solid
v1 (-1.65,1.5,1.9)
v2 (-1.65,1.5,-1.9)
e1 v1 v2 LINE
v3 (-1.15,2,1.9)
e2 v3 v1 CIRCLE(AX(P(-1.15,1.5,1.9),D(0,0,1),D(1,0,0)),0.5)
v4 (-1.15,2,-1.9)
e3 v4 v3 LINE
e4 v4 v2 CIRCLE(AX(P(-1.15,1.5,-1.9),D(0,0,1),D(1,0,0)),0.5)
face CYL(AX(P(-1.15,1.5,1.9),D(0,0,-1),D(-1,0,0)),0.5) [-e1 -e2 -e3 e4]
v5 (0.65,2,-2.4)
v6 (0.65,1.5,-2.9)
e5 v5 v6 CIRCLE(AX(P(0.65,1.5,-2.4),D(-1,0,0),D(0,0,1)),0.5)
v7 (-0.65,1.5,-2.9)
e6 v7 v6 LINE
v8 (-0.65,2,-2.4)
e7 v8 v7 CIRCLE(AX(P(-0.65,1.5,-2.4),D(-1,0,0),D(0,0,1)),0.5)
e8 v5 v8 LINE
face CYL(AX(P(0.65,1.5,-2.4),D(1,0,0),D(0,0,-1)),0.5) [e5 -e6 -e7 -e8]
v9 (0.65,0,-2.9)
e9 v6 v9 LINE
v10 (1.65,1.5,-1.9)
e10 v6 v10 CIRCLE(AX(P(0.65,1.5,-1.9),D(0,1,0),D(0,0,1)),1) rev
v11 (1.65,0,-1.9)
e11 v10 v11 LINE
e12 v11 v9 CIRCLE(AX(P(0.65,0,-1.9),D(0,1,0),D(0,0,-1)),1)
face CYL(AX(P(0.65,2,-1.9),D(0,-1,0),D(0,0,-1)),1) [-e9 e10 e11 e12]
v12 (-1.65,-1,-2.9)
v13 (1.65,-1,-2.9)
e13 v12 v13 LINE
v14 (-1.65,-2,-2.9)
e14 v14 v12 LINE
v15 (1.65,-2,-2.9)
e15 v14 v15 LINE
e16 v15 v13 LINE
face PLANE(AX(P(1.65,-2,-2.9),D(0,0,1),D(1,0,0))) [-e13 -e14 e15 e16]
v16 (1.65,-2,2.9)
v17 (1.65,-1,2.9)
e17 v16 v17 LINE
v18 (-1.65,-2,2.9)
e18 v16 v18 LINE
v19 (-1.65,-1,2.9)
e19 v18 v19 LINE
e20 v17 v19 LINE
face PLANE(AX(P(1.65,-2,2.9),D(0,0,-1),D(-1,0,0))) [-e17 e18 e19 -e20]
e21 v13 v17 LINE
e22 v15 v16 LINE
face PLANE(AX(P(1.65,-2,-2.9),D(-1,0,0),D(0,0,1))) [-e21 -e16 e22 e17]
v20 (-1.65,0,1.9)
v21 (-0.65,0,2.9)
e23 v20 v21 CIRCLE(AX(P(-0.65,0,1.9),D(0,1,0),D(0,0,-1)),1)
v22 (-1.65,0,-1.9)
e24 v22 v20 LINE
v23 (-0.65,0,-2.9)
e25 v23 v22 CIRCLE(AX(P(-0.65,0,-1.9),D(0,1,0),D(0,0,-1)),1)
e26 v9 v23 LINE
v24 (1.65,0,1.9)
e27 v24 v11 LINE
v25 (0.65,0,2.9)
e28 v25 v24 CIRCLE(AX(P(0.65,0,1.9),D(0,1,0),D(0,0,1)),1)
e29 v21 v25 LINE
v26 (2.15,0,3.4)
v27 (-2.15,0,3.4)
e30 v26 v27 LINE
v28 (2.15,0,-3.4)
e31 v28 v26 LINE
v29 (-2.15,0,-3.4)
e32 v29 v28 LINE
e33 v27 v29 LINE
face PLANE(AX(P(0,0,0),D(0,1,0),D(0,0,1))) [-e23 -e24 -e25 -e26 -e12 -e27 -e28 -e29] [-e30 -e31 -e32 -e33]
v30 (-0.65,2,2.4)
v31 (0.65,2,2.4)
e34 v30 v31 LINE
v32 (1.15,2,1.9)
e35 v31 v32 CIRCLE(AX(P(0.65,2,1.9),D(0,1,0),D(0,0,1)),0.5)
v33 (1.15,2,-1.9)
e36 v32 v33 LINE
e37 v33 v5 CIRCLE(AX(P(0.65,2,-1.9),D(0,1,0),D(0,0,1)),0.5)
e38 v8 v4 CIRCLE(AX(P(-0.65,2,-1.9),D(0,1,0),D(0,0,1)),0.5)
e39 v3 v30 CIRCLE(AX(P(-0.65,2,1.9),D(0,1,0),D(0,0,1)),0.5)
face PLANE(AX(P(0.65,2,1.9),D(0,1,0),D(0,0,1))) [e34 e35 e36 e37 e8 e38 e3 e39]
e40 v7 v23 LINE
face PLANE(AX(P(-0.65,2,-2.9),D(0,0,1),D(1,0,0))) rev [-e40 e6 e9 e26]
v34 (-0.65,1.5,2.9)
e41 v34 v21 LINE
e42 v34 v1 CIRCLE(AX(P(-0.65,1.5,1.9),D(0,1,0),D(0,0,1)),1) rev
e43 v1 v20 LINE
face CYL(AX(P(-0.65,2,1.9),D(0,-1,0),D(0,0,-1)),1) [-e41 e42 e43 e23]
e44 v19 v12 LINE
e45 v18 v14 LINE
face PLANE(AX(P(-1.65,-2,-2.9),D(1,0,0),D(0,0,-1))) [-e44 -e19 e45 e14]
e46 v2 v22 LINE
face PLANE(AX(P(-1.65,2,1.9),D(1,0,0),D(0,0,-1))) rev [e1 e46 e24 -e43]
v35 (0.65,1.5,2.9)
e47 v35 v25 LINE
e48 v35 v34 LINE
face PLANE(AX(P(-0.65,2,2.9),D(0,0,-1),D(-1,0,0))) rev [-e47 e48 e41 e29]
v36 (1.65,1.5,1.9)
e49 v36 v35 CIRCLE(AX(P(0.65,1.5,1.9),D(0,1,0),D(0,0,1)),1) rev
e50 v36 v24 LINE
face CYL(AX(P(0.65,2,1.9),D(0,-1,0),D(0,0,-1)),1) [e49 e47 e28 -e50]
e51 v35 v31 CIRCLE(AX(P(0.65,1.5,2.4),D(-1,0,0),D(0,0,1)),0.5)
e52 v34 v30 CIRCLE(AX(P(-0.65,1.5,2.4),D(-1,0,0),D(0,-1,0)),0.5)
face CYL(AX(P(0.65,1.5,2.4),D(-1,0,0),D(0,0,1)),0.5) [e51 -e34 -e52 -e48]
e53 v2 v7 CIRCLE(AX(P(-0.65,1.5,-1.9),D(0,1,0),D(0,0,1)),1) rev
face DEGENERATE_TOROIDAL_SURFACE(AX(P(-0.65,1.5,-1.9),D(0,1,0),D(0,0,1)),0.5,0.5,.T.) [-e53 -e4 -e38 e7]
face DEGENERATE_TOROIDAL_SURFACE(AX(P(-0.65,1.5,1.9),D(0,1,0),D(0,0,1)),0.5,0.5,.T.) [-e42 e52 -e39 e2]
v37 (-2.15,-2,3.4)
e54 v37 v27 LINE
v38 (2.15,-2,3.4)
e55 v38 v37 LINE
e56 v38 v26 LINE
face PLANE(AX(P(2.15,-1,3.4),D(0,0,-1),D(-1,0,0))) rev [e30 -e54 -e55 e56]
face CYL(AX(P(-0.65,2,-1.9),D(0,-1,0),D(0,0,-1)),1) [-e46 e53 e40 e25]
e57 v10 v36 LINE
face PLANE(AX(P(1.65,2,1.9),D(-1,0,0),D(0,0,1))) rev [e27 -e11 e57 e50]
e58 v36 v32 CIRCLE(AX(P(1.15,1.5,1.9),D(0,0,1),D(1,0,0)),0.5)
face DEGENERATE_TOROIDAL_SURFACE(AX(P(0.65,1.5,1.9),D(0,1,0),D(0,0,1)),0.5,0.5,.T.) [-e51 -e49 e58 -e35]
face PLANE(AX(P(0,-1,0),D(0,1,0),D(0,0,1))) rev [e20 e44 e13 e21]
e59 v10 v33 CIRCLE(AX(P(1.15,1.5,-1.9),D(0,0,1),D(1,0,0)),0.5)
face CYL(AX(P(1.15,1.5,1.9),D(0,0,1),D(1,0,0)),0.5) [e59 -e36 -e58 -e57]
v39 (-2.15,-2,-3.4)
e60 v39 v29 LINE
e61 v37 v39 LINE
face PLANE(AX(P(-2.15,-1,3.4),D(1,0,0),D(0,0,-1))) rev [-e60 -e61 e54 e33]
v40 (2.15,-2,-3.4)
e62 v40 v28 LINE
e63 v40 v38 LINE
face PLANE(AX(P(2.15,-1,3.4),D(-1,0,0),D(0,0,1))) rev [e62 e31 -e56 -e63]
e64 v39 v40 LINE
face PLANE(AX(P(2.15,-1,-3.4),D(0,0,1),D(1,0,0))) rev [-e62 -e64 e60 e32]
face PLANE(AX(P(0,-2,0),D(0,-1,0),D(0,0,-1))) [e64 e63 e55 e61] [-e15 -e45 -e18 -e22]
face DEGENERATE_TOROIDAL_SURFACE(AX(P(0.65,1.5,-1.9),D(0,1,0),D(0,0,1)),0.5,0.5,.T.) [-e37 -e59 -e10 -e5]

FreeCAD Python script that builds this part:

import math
import FreeCAD as App
import Part
import Sketcher


def edges_at(feature, points):
    """Names of the edges that pass closest to the given points."""
    edges = feature.Shape.Edges
    near = lambda p: min(range(len(edges)), key=lambda i: edges[i].distToShape(Part.Vertex(*p))[0])
    return sorted({f"Edge{near(p) + 1}" for p in points})


def add_polygon(sketch, points):
    """Adds a closed chain of lines whose ends are joined by coincident constraints."""
    first, n = sketch.GeometryCount, len(points)
    for a, b in zip(points, points[1:] + points[:1]):
        sketch.addGeometry(Part.LineSegment(App.Vector(*a, 0), App.Vector(*b, 0)), False)
    for i in range(n):
        sketch.addConstraint(Sketcher.Constraint("Coincident", first + i, 2, first + (i + 1) % n, 1))

doc = App.newDocument("Part")
params = doc.addObject("Spreadsheet::Sheet", "Params")
for row, (alias, value) in enumerate([
    ("sketch1_radius", "1 mm"),
    ("sketch1_width", "1.3 mm"),
    ("sketch1_height", "3.8 mm"),
    ("pad1_length", "2 mm"),
    ("sketch2_width", "4.3 mm"),
    ("sketch2_height", "6.8 mm"),
    ("pad2_length", "1 mm"),
    ("sketch3_width", "4.3 mm"),
    ("sketch3_width2", "3.3 mm"),
    ("sketch3_height", "6.8 mm"),
    ("sketch3_height2", "5.8 mm"),
    ("pad3_length", "1 mm"),
    ("fillet_radius", "0.5 mm"),
], start=1):
    params.set(f"A{row}", alias)
    params.set(f"B{row}", "=" + value)
    params.setAlias(f"B{row}", alias)

body = doc.addObject("PartDesign::Body", "Body")

sketch1 = doc.addObject("Sketcher::SketchObject", "Sketch")
body.addObject(sketch1)
sketch1.AttachmentSupport = (doc.XZ_Plane, [""])
sketch1.MapMode = "FlatFace"
sketch1.addGeometry(Part.LineSegment(App.Vector(-0.65, 2.9, 0), App.Vector(0.65, 2.9, 0)), False)
sketch1.addGeometry(Part.ArcOfCircle(Part.Circle(App.Vector(0.65, 1.9, 0), App.Vector(0, 0, 1), 1), math.radians(0), math.radians(90)), False)
sketch1.addGeometry(Part.LineSegment(App.Vector(1.65, 1.9, 0), App.Vector(1.65, -1.9, 0)), False)
sketch1.addGeometry(Part.ArcOfCircle(Part.Circle(App.Vector(0.65, -1.9, 0), App.Vector(0, 0, 1), 1), math.radians(-90), math.radians(0)), False)
sketch1.addGeometry(Part.LineSegment(App.Vector(0.65, -2.9, 0), App.Vector(-0.65, -2.9, 0)), False)
sketch1.addGeometry(Part.ArcOfCircle(Part.Circle(App.Vector(-0.65, -1.9, 0), App.Vector(0, 0, 1), 1), math.radians(-180), math.radians(-90)), False)
sketch1.addGeometry(Part.LineSegment(App.Vector(-1.65, -1.9, 0), App.Vector(-1.65, 1.9, 0)), False)
sketch1.addGeometry(Part.ArcOfCircle(Part.Circle(App.Vector(-0.65, 1.9, 0), App.Vector(0, 0, 1), 1), math.radians(90), math.radians(180)), False)
sketch1.addConstraint(Sketcher.Constraint("Tangent", 0, 2, 1, 2))
sketch1.addConstraint(Sketcher.Constraint("Tangent", 1, 1, 2, 1))
sketch1.addConstraint(Sketcher.Constraint("Tangent", 2, 2, 3, 2))
sketch1.addConstraint(Sketcher.Constraint("Tangent", 3, 1, 4, 1))
sketch1.addConstraint(Sketcher.Constraint("Tangent", 4, 2, 5, 2))
sketch1.addConstraint(Sketcher.Constraint("Tangent", 5, 1, 6, 1))
sketch1.addConstraint(Sketcher.Constraint("Tangent", 6, 2, 7, 2))
sketch1.addConstraint(Sketcher.Constraint("Tangent", 7, 1, 0, 1))
sketch1.addConstraint(Sketcher.Constraint("Horizontal", 0))
sketch1.addConstraint(Sketcher.Constraint("Vertical", 2))
sketch1.addConstraint(Sketcher.Constraint("Horizontal", 4))
sketch1.addConstraint(Sketcher.Constraint("Vertical", 6))
sketch1.addConstraint(Sketcher.Constraint("Equal", 1, 3))
sketch1.addConstraint(Sketcher.Constraint("Equal", 3, 5))
sketch1.addConstraint(Sketcher.Constraint("Equal", 5, 7))
sketch1.addConstraint(Sketcher.Constraint("Symmetric", 1, 3, 5, 3, -1, 1))
sketch1.addConstraint(Sketcher.Constraint("Radius", 1, 1.0))
sketch1.addConstraint(Sketcher.Constraint("DistanceX", 0, 1, 0, 2, 1.3))
sketch1.addConstraint(Sketcher.Constraint("DistanceY", 2, 2, 2, 1, 3.8))
sketch1.setExpression("Constraints[16]", "Params.sketch1_radius")
sketch1.setExpression("Constraints[17]", "Params.sketch1_width")
sketch1.setExpression("Constraints[18]", "Params.sketch1_height")
pad1 = doc.addObject("PartDesign::Pad", "Pad")
body.addObject(pad1)
pad1.Profile = sketch1
pad1.setExpression("Length", "Params.pad1_length")
pad1.Reversed = True

sketch2 = doc.addObject("Sketcher::SketchObject", "Sketch001")
body.addObject(sketch2)
sketch2.AttachmentSupport = (doc.XZ_Plane, [""])
sketch2.MapMode = "FlatFace"
add_polygon(sketch2, [(-2.15, 3.4), (-2.15, -3.4), (2.15, -3.4), (2.15, 3.4)])
sketch2.addConstraint(Sketcher.Constraint("Vertical", 0))
sketch2.addConstraint(Sketcher.Constraint("Horizontal", 1))
sketch2.addConstraint(Sketcher.Constraint("Vertical", 2))
sketch2.addConstraint(Sketcher.Constraint("Horizontal", 3))
sketch2.addConstraint(Sketcher.Constraint("Symmetric", 0, 2, 2, 2, -1, 1))
sketch2.addConstraint(Sketcher.Constraint("DistanceX", 1, 1, 1, 2, 4.3))
sketch2.addConstraint(Sketcher.Constraint("DistanceY", 0, 2, 0, 1, 6.8))
sketch2.setExpression("Constraints[9]", "Params.sketch2_width")
sketch2.setExpression("Constraints[10]", "Params.sketch2_height")
pad2 = doc.addObject("PartDesign::Pad", "Pad001")
body.addObject(pad2)
pad2.Profile = sketch2
pad2.setExpression("Length", "Params.pad2_length")

sketch3 = doc.addObject("Sketcher::SketchObject", "Sketch002")
body.addObject(sketch3)
sketch3.AttachmentSupport = (doc.XZ_Plane, [""])
sketch3.MapMode = "FlatFace"
sketch3.AttachmentOffset = App.Placement(App.Vector(0, 0, 1), App.Rotation())
add_polygon(sketch3, [(-2.15, 3.4), (-2.15, -3.4), (2.15, -3.4), (2.15, 3.4)])
add_polygon(sketch3, [(1.65, -2.9), (-1.65, -2.9), (-1.65, 2.9), (1.65, 2.9)])
sketch3.addConstraint(Sketcher.Constraint("Vertical", 0))
sketch3.addConstraint(Sketcher.Constraint("Horizontal", 1))
sketch3.addConstraint(Sketcher.Constraint("Vertical", 2))
sketch3.addConstraint(Sketcher.Constraint("Horizontal", 3))
sketch3.addConstraint(Sketcher.Constraint("Horizontal", 4))
sketch3.addConstraint(Sketcher.Constraint("Vertical", 5))
sketch3.addConstraint(Sketcher.Constraint("Horizontal", 6))
sketch3.addConstraint(Sketcher.Constraint("Vertical", 7))
sketch3.addConstraint(Sketcher.Constraint("Symmetric", 0, 2, 2, 2, -1, 1))
sketch3.addConstraint(Sketcher.Constraint("Symmetric", 4, 2, 6, 2, -1, 1))
sketch3.addConstraint(Sketcher.Constraint("DistanceX", 1, 1, 1, 2, 4.3))
sketch3.addConstraint(Sketcher.Constraint("DistanceX", 4, 2, 4, 1, 3.3))
sketch3.addConstraint(Sketcher.Constraint("DistanceY", 0, 2, 0, 1, 6.8))
sketch3.addConstraint(Sketcher.Constraint("DistanceY", 5, 1, 5, 2, 5.8))
sketch3.setExpression("Constraints[18]", "Params.sketch3_width")
sketch3.setExpression("Constraints[19]", "Params.sketch3_width2")
sketch3.setExpression("Constraints[20]", "Params.sketch3_height")
sketch3.setExpression("Constraints[21]", "Params.sketch3_height2")
pad3 = doc.addObject("PartDesign::Pad", "Pad002")
body.addObject(pad3)
pad3.Profile = sketch3
pad3.setExpression("Length", "Params.pad3_length")
doc.recompute()

fillet = doc.addObject("PartDesign::Fillet", "Fillet")
body.addObject(fillet)
fillet.Base = (pad3, edges_at(pad3, [
    (1.357, 2, -2.607),
    (0, 2, -2.9),
    (-1.357, 2, -2.607),
    (-1.65, 2, 0),
    (-1.357, 2, 2.607),
    (0, 2, 2.9),
    (1.357, 2, 2.607),
    (1.65, 2, 0),
]))
fillet.setExpression("Radius", "Params.fillet_radius")

doc.recompute()
